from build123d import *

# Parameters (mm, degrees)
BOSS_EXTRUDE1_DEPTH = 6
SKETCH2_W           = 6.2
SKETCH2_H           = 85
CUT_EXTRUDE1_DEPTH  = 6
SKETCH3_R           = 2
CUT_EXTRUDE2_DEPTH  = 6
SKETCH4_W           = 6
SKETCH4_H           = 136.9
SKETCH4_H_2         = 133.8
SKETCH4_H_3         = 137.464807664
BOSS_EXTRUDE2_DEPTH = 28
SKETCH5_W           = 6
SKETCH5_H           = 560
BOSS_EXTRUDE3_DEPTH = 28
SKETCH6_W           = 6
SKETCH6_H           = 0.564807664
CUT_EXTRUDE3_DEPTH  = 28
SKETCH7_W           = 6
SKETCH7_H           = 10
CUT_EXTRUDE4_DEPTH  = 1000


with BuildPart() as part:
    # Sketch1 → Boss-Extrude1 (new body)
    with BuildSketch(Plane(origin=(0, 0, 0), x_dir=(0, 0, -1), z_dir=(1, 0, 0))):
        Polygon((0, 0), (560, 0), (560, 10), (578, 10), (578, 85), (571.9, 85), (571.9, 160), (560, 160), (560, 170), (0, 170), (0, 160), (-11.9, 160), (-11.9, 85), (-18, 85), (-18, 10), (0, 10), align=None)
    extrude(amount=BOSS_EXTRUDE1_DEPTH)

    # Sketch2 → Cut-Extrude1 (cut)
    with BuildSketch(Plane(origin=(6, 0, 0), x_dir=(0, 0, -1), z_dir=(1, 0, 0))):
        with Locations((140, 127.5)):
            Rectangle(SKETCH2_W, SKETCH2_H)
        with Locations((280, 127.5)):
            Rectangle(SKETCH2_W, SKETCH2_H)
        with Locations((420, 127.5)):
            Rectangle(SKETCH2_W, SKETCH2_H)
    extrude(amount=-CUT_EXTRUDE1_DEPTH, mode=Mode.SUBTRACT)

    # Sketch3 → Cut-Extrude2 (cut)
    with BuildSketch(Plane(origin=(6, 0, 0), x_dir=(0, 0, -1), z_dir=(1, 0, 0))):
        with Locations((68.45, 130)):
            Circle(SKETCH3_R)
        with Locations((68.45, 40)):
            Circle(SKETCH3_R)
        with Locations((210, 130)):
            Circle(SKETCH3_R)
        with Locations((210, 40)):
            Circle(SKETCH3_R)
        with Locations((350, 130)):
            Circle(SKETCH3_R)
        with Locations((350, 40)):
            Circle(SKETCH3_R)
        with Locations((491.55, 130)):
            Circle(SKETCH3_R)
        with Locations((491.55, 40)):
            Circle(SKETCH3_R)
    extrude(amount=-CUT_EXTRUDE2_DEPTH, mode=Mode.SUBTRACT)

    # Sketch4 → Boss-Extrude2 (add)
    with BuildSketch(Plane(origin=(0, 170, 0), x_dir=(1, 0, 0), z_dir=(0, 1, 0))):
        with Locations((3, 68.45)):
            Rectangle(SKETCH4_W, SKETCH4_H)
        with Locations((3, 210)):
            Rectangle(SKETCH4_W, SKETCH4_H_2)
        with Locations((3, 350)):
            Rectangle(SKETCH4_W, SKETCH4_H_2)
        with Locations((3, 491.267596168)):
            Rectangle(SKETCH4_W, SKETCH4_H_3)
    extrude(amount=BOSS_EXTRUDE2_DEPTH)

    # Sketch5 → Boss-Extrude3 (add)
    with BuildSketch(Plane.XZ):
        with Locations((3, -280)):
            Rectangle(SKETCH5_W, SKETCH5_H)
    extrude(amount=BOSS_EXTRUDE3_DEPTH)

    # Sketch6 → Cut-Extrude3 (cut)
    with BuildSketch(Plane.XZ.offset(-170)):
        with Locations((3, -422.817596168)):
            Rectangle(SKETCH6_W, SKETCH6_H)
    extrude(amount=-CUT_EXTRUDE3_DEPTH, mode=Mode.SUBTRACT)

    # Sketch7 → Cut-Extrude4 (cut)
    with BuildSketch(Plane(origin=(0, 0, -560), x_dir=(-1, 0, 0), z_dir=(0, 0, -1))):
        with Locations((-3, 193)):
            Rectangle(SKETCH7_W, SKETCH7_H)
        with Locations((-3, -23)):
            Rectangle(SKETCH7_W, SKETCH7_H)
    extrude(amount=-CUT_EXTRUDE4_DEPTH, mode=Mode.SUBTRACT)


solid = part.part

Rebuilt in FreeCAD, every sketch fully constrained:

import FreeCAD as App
import Part
import Sketcher
Q = App.Units.Quantity


def add_polygon(sketch, points):
    """Adds a closed chain of lines whose ends are joined by coincident constraints."""
    first, n = sketch.GeometryCount, len(points)
    for a, b in zip(points, points[1:] + points[:1]):
        sketch.addGeometry(Part.LineSegment(App.Vector(*a, 0), App.Vector(*b, 0)), False)
    for i in range(n):
        sketch.addConstraint(Sketcher.Constraint("Coincident", first + i, 2, first + (i + 1) % n, 1))

doc = App.newDocument("Part")
body = doc.addObject("PartDesign::Body", "Body")

# Sketch on YZ plane
sketch1 = body.newObject("Sketcher::SketchObject", "Sketch")
sketch1.AttachmentSupport = (doc.getObject("YZ_Plane"), [""])
sketch1.MapMode = "FlatFace"
add_polygon(sketch1, [(0, 0), (0, -560), (10, -560), (10, -578), (85, -578), (85, -571.9), (160, -571.9), (160, -560), (170, -560), (170, 0), (160, 0), (160, 11.9), (85, 11.9), (85, 18), (10, 18), (10, 0)])  # lines 0-15
sketch1.addConstraint([
    Sketcher.Constraint("Vertical", 0),
    Sketcher.Constraint("Horizontal", 1),
    Sketcher.Constraint("Vertical", 2),
    Sketcher.Constraint("Horizontal", 3),
    Sketcher.Constraint("Vertical", 4),
    Sketcher.Constraint("Horizontal", 5),
    Sketcher.Constraint("Vertical", 6),
    Sketcher.Constraint("Horizontal", 7),
    Sketcher.Constraint("Vertical", 8),
    Sketcher.Constraint("Horizontal", 9),
    Sketcher.Constraint("Vertical", 10),
    Sketcher.Constraint("Horizontal", 11),
    Sketcher.Constraint("Vertical", 12),
    Sketcher.Constraint("Horizontal", 13),
    Sketcher.Constraint("Vertical", 14),
    Sketcher.Constraint("Horizontal", 15),
    Sketcher.Constraint("Coincident", 15, 2, -1, 1),
    Sketcher.Constraint("PointOnObject", 8, 2, -1),
    Sketcher.Constraint("Horizontal", 1, 2, 6, 2),
    Sketcher.Constraint("Vertical", 6, 2, 9, 2),
    Sketcher.Constraint("Vertical", 4, 2, 11, 2),
    Sketcher.Constraint("Vertical", 2, 2, 13, 2),
    Sketcher.Constraint("Equal", 3, 5),
    Sketcher.Constraint("Equal", 1, 7),
    Sketcher.Constraint("Equal", 6, 10),
    Sketcher.Constraint("Equal", 4, 12),
    Sketcher.Constraint("DistanceX", 1, 1, 1, 2, Q("10 mm")),
    Sketcher.Constraint("DistanceX", 3, 1, 3, 2, Q("75 mm")),
    Sketcher.Constraint("DistanceY", 0, 2, 0, 1, Q("560 mm")),
    Sketcher.Constraint("DistanceY", 2, 2, 2, 1, Q("18 mm")),
    Sketcher.Constraint("DistanceY", 4, 1, 4, 2, Q("6.1 mm")),
])
pad1 = body.newObject("PartDesign::Pad", "Pad")
pad1.Profile = sketch1
pad1.Length = 6

# Sketch on YZ plane
sketch2 = body.newObject("Sketcher::SketchObject", "Sketch001")
sketch2.AttachmentSupport = (doc.getObject("YZ_Plane"), [""])
sketch2.MapMode = "FlatFace"
sketch2.AttachmentOffset = App.Placement(App.Vector(0, 0, 6), App.Rotation())
add_polygon(sketch2, [(170, -136.9), (85, -136.9), (85, -143.1), (170, -143.1)])  # lines 0-3
add_polygon(sketch2, [(170, -276.9), (85, -276.9), (85, -283.1), (170, -283.1)])  # lines 4-7
add_polygon(sketch2, [(170, -416.9), (85, -416.9), (85, -423.1), (170, -423.1)])  # lines 8-11
sketch2.addConstraint([
    Sketcher.Constraint("Horizontal", 0),
    Sketcher.Constraint("Vertical", 1),
    Sketcher.Constraint("Horizontal", 2),
    Sketcher.Constraint("Vertical", 3),
    Sketcher.Constraint("Horizontal", 4),
    Sketcher.Constraint("Vertical", 5),
    Sketcher.Constraint("Horizontal", 6),
    Sketcher.Constraint("Vertical", 7),
    Sketcher.Constraint("Horizontal", 8),
    Sketcher.Constraint("Vertical", 9),
    Sketcher.Constraint("Horizontal", 10),
    Sketcher.Constraint("Vertical", 11),
    Sketcher.Constraint("Vertical", 1, 2, 4, 2),
    Sketcher.Constraint("Vertical", 3, 2, 6, 2),
    Sketcher.Constraint("Vertical", 5, 2, 8, 2),
    Sketcher.Constraint("Vertical", 7, 2, 10, 2),
    Sketcher.Constraint("Equal", 3, 5),
    Sketcher.Constraint("Equal", 7, 9),
    Sketcher.Constraint("DistanceX", 0, 2, 0, 1, Q("85 mm")),
    Sketcher.Constraint("DistanceY", 1, 2, 1, 1, Q("6.2 mm")),
    Sketcher.Constraint("DistanceX", -1, 1, 0, 2, Q("85 mm")),
    Sketcher.Constraint("DistanceY", 4, 2, 0, 2, Q("140 mm")),
    Sketcher.Constraint("DistanceY", 8, 2, 4, 2, Q("140 mm")),
    Sketcher.Constraint("DistanceY", 0, 2, -1, 1, Q("136.9 mm")),
])
pocket1 = body.newObject("PartDesign::Pocket", "Pocket")
pocket1.Profile = sketch2
pocket1.Length = 6

# Sketch on YZ plane
sketch3 = body.newObject("Sketcher::SketchObject", "Sketch002")
sketch3.AttachmentSupport = (doc.getObject("YZ_Plane"), [""])
sketch3.MapMode = "FlatFace"
sketch3.AttachmentOffset = App.Placement(App.Vector(0, 0, 6), App.Rotation())
sketch3.addGeometry([
    Part.Circle(App.Vector(130, -68.45, 0), App.Vector(0, 0, 1), 2),  # 0
    Part.Circle(App.Vector(40, -68.45, 0), App.Vector(0, 0, 1), 2),  # 1
    Part.Circle(App.Vector(130, -210, 0), App.Vector(0, 0, 1), 2),  # 2
    Part.Circle(App.Vector(40, -210, 0), App.Vector(0, 0, 1), 2),  # 3
    Part.Circle(App.Vector(130, -350, 0), App.Vector(0, 0, 1), 2),  # 4
    Part.Circle(App.Vector(40, -350, 0), App.Vector(0, 0, 1), 2),  # 5
    Part.Circle(App.Vector(130, -491.55, 0), App.Vector(0, 0, 1), 2),  # 6
    Part.Circle(App.Vector(40, -491.55, 0), App.Vector(0, 0, 1), 2),  # 7
], False)
sketch3.addConstraint([
    Sketcher.Constraint("Equal", 0, 1),
    Sketcher.Constraint("Equal", 1, 2),
    Sketcher.Constraint("Equal", 2, 3),
    Sketcher.Constraint("Equal", 3, 4),
    Sketcher.Constraint("Equal", 4, 5),
    Sketcher.Constraint("Equal", 5, 6),
    Sketcher.Constraint("Equal", 6, 7),
    Sketcher.Constraint("Horizontal", 0, 3, 1, 3),
    Sketcher.Constraint("Horizontal", 2, 3, 3, 3),
    Sketcher.Constraint("Horizontal", 4, 3, 5, 3),
    Sketcher.Constraint("Horizontal", 6, 3, 7, 3),
    Sketcher.Constraint("Vertical", 0, 3, 2, 3),
    Sketcher.Constraint("Vertical", 1, 3, 3, 3),
    Sketcher.Constraint("Vertical", 2, 3, 4, 3),
    Sketcher.Constraint("Vertical", 3, 3, 5, 3),
    Sketcher.Constraint("Vertical", 4, 3, 6, 3),
    Sketcher.Constraint("Vertical", 5, 3, 7, 3),
    Sketcher.Constraint("Diameter", 0, Q("4 mm")),
    Sketcher.Constraint("DistanceX", -1, 1, 0, 3, Q("130 mm")),
    Sketcher.Constraint("DistanceX", -1, 1, 1, 3, Q("40 mm")),
    Sketcher.Constraint("DistanceY", 2, 3, -1, 1, Q("210 mm")),
    Sketcher.Constraint("DistanceY", 4, 3, -1, 1, Q("350 mm")),
    Sketcher.Constraint("DistanceY", 6, 3, 0, 3, Q("423.1 mm")),
    Sketcher.Constraint("DistanceY", 0, 3, -1, 1, Q("68.45 mm")),
])
pocket2 = body.newObject("PartDesign::Pocket", "Pocket001")
pocket2.Profile = sketch3
pocket2.Length = 6

# Sketch on XZ plane
sketch4 = body.newObject("Sketcher::SketchObject", "Sketch003")
sketch4.AttachmentSupport = (doc.getObject("XZ_Plane"), [""])
sketch4.MapMode = "FlatFace"
sketch4.AttachmentOffset = App.Placement(App.Vector(0, 0, -170), App.Rotation())
add_polygon(sketch4, [(0, -136.9), (0, 0), (6, 0), (6, -136.9)])  # lines 0-3
add_polygon(sketch4, [(0, -276.9), (0, -143.1), (6, -143.1), (6, -276.9)])  # lines 4-7
add_polygon(sketch4, [(0, -416.9), (0, -283.1), (6, -283.1), (6, -416.9)])  # lines 8-11
add_polygon(sketch4, [(0, -560), (0, -422.535192), (6, -422.535192), (6, -560)])  # lines 12-15
sketch4.addConstraint([
    Sketcher.Constraint("Vertical", 0),
    Sketcher.Constraint("Horizontal", 1),
    Sketcher.Constraint("Vertical", 2),
    Sketcher.Constraint("Horizontal", 3),
    Sketcher.Constraint("Vertical", 4),
    Sketcher.Constraint("Horizontal", 5),
    Sketcher.Constraint("Vertical", 6),
    Sketcher.Constraint("Horizontal", 7),
    Sketcher.Constraint("Vertical", 8),
    Sketcher.Constraint("Horizontal", 9),
    Sketcher.Constraint("Vertical", 10),
    Sketcher.Constraint("Horizontal", 11),
    Sketcher.Constraint("Vertical", 12),
    Sketcher.Constraint("Horizontal", 13),
    Sketcher.Constraint("Vertical", 14),
    Sketcher.Constraint("Horizontal", 15),
    Sketcher.Constraint("Coincident", 0, 2, -1, 1),
    Sketcher.Constraint("PointOnObject", 4, 2, -2),
    Sketcher.Constraint("PointOnObject", 8, 2, -2),
    Sketcher.Constraint("PointOnObject", 12, 2, -2),
    Sketcher.Constraint("Vertical", 2, 2, 5, 2),
    Sketcher.Constraint("Vertical", 6, 2, 9, 2),
    Sketcher.Constraint("Vertical", 10, 2, 13, 2),
    Sketcher.Constraint("Equal", 6, 8),
    Sketcher.Constraint("DistanceX", 1, 1, 1, 2, Q("6 mm")),
    Sketcher.Constraint("DistanceY", 0, 1, 0, 2, Q("136.9 mm")),
    Sketcher.Constraint("DistanceY", 4, 1, 4, 2, Q("133.8 mm")),
    Sketcher.Constraint("DistanceY", 14, 2, -1, 1, Q("560 mm")),
    Sketcher.Constraint("DistanceY", 6, 2, 2, 2, Q("140 mm")),
    Sketcher.Constraint("DistanceY", 8, 2, 4, 2, Q("140 mm")),
    Sketcher.Constraint("DistanceY", 12, 1, 12, 2, Q("137.464808 mm")),
])
pad2 = body.newObject("PartDesign::Pad", "Pad001")
pad2.Profile = sketch4
pad2.Length = 28
pad2.Reversed = True

# Sketch on XZ plane
sketch5 = body.newObject("Sketcher::SketchObject", "Sketch004")
sketch5.AttachmentSupport = (doc.getObject("XZ_Plane"), [""])
sketch5.MapMode = "FlatFace"
add_polygon(sketch5, [(0, 0), (0, -560), (6, -560), (6, 0)])  # lines 0-3
sketch5.addConstraint([
    Sketcher.Constraint("Vertical", 0),
    Sketcher.Constraint("Horizontal", 1),
    Sketcher.Constraint("Vertical", 2),
    Sketcher.Constraint("Horizontal", 3),
    Sketcher.Constraint("Coincident", 3, 2, -1, 1),
    Sketcher.Constraint("DistanceX", 1, 1, 1, 2, Q("6 mm")),
    Sketcher.Constraint("DistanceY", 0, 2, 0, 1, Q("560 mm")),
])
pad3 = body.newObject("PartDesign::Pad", "Pad002")
pad3.Profile = sketch5
pad3.Length = 28

# Sketch on XZ plane
sketch6 = body.newObject("Sketcher::SketchObject", "Sketch005")
sketch6.AttachmentSupport = (doc.getObject("XZ_Plane"), [""])
sketch6.MapMode = "FlatFace"
sketch6.AttachmentOffset = App.Placement(App.Vector(0, 0, -170), App.Rotation())
add_polygon(sketch6, [(0, -422.535192), (0, -423.1), (6, -423.1), (6, -422.535192)])  # lines 0-3
sketch6.addConstraint([
    Sketcher.Constraint("Vertical", 0),
    Sketcher.Constraint("Horizontal", 1),
    Sketcher.Constraint("Vertical", 2),
    Sketcher.Constraint("Horizontal", 3),
    Sketcher.Constraint("PointOnObject", 0, 2, -2),
    Sketcher.Constraint("DistanceX", 1, 1, 1, 2, Q("6 mm")),
    Sketcher.Constraint("DistanceY", 0, 2, -1, 1, Q("423.1 mm")),
    Sketcher.Constraint("DistanceY", 0, 2, 0, 1, Q("0.564808 mm")),
])
pocket3 = body.newObject("PartDesign::Pocket", "Pocket002")
pocket3.Profile = sketch6
pocket3.Length = 28

# Sketch on XY plane
sketch7 = body.newObject("Sketcher::SketchObject", "Sketch006")
sketch7.AttachmentSupport = (doc.getObject("XY_Plane"), [""])
sketch7.MapMode = "FlatFace"
sketch7.AttachmentOffset = App.Placement(App.Vector(0, 0, -560), App.Rotation())
add_polygon(sketch7, [(6, 198), (6, 188), (0, 188), (0, 198)])  # lines 0-3
add_polygon(sketch7, [(6, -18), (6, -28), (0, -28), (0, -18)])  # lines 4-7
sketch7.addConstraint([
    Sketcher.Constraint("Vertical", 0),
    Sketcher.Constraint("Horizontal", 1),
    Sketcher.Constraint("Vertical", 2),
    Sketcher.Constraint("Horizontal", 3),
    Sketcher.Constraint("Vertical", 4),
    Sketcher.Constraint("Horizontal", 5),
    Sketcher.Constraint("Vertical", 6),
    Sketcher.Constraint("Horizontal", 7),
    Sketcher.Constraint("PointOnObject", 1, 2, -2),
    Sketcher.Constraint("PointOnObject", 5, 2, -2),
    Sketcher.Constraint("Vertical", 3, 2, 4, 2),
    Sketcher.Constraint("Equal", 2, 4),
    Sketcher.Constraint("DistanceX", 1, 2, 1, 1, Q("6 mm")),
    Sketcher.Constraint("DistanceY", 0, 2, 0, 1, Q("10 mm")),
    Sketcher.Constraint("DistanceY", -1, 1, 0, 2, Q("188 mm")),
    Sketcher.Constraint("DistanceY", 4, 2, -1, 1, Q("28 mm")),
])
pocket4 = body.newObject("PartDesign::Pocket", "Pocket003")
pocket4.Profile = sketch7
pocket4.Length = 1000
pocket4.Reversed = True

doc.recompute()
